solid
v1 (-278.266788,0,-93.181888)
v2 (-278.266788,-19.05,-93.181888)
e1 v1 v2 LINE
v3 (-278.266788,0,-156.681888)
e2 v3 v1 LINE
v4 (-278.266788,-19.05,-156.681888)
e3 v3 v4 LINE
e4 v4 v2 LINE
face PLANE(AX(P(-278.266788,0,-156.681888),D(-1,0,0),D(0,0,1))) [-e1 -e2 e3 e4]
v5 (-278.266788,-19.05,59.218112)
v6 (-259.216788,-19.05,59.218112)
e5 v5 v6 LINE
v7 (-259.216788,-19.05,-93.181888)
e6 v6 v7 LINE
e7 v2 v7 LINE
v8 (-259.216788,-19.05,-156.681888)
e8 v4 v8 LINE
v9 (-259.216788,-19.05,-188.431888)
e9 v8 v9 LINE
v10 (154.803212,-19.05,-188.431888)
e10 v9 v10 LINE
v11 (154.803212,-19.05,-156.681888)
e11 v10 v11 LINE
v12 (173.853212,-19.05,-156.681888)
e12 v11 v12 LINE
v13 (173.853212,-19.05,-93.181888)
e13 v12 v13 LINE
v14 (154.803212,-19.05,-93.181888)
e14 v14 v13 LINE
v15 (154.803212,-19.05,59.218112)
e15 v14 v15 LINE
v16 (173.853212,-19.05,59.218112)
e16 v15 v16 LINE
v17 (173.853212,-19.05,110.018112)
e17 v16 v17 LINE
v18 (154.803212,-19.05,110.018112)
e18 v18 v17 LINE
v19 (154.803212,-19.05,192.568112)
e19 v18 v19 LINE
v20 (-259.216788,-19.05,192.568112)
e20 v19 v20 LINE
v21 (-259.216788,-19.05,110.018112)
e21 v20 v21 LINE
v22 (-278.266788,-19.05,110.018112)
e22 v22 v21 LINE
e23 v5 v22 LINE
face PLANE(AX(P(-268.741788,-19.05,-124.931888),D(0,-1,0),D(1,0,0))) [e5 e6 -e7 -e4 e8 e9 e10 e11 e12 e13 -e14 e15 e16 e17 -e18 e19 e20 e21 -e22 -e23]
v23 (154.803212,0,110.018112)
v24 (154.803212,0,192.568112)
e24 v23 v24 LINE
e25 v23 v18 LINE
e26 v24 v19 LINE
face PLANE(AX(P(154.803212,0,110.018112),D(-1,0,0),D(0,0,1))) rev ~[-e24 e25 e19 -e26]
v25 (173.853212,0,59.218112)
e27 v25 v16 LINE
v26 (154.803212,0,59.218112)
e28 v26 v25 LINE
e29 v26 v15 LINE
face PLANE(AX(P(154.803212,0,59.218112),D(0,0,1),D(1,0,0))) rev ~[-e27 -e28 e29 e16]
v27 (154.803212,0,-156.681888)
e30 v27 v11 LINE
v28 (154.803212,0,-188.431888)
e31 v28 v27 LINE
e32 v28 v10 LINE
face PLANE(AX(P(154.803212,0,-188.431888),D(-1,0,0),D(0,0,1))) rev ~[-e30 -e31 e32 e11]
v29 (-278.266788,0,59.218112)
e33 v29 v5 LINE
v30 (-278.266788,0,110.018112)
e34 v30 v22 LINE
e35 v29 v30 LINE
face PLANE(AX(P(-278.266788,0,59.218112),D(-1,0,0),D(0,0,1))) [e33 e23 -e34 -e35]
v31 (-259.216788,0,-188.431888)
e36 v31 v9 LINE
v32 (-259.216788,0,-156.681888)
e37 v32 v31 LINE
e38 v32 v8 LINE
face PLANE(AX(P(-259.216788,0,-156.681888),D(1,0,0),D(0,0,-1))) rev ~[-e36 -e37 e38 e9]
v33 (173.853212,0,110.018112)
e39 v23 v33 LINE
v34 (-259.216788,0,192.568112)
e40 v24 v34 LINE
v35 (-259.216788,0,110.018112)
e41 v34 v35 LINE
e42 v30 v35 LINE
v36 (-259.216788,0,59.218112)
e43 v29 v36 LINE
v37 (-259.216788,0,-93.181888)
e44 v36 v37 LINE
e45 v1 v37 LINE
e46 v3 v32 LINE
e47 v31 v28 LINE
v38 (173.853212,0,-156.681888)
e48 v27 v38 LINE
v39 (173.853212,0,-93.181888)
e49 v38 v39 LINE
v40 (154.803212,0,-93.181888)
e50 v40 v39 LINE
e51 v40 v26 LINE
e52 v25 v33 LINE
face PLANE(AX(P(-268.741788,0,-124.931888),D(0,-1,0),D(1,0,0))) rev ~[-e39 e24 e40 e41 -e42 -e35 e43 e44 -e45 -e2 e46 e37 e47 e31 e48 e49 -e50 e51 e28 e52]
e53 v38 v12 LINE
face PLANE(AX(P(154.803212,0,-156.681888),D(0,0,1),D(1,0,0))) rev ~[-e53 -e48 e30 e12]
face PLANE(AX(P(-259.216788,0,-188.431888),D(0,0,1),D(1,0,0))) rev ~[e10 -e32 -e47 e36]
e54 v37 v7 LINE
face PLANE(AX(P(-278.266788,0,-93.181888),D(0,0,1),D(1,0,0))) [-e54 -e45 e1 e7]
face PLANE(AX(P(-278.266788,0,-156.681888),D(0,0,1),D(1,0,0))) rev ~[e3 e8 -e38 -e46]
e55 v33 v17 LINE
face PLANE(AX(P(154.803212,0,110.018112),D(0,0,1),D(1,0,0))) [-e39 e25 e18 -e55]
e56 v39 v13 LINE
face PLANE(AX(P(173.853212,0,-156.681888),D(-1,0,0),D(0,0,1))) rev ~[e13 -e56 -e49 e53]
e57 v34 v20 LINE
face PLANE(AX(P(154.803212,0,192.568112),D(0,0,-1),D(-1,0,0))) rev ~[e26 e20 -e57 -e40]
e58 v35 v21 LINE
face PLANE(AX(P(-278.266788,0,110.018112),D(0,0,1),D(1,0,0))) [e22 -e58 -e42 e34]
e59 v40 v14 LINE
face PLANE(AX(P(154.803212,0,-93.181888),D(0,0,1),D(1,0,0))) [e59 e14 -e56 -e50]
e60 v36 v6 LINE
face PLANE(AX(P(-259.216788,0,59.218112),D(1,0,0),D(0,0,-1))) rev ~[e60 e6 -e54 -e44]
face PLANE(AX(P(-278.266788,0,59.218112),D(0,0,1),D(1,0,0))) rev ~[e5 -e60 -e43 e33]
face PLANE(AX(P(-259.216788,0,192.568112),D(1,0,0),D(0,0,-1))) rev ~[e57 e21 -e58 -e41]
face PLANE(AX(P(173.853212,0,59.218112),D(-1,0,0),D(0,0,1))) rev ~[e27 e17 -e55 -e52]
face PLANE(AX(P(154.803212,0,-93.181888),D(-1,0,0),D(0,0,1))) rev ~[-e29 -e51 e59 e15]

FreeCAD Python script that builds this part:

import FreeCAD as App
import Part
import Sketcher

V = App.Vector
Q = App.Units.Quantity


def add_polygon(sketch, points):
    """Adds a closed chain of lines whose ends are joined by coincident constraints."""
    first, n = sketch.GeometryCount, len(points)
    for a, b in zip(points, points[1:] + points[:1]):
        sketch.addGeometry(Part.LineSegment(App.Vector(*a, 0), App.Vector(*b, 0)), False)
    for i in range(n):
        sketch.addConstraint(Sketcher.Constraint("Coincident", first + i, 2, first + (i + 1) % n, 1))

doc = App.newDocument("Part")
body = doc.addObject("PartDesign::Body", "Body")

# Sketch on XZ plane
sketch1 = body.newObject("Sketcher::SketchObject", "Sketch")
sketch1.AttachmentSupport = (doc.getObject("XZ_Plane"), [""])
sketch1.MapMode = "FlatFace"
add_polygon(sketch1, [(-278, -93), (-278, -157), (-259, -157), (-259, -188), (155, -188), (155, -157), (174, -157), (174, -93), (155, -93), (155, 59), (174, 59), (174, 110), (155, 110), (155, 193), (-259, 193), (-259, 110), (-278, 110), (-278, 59), (-259, 59), (-259, -93)])  # lines 0-19
sketch1.addConstraint([
    Sketcher.Constraint("Vertical", 0),
    Sketcher.Constraint("Horizontal", 1),
    Sketcher.Constraint("Vertical", 2),
    Sketcher.Constraint("Horizontal", 3),
    Sketcher.Constraint("Vertical", 4),
    Sketcher.Constraint("Horizontal", 5),
    Sketcher.Constraint("Vertical", 6),
    Sketcher.Constraint("Horizontal", 7),
    Sketcher.Constraint("Vertical", 8),
    Sketcher.Constraint("Horizontal", 9),
    Sketcher.Constraint("Vertical", 10),
    Sketcher.Constraint("Horizontal", 11),
    Sketcher.Constraint("Vertical", 12),
    Sketcher.Constraint("Horizontal", 13),
    Sketcher.Constraint("Vertical", 14),
    Sketcher.Constraint("Horizontal", 15),
    Sketcher.Constraint("Vertical", 16),
    Sketcher.Constraint("Horizontal", 17),
    Sketcher.Constraint("Vertical", 18),
    Sketcher.Constraint("Horizontal", 19),
    Sketcher.Constraint("Horizontal", 1, 2, 4, 2),
    Sketcher.Constraint("Horizontal", 11, 2, 14, 2),
    Sketcher.Constraint("Horizontal", 9, 2, 16, 2),
    Sketcher.Constraint("Horizontal", 7, 2, 18, 2),
    Sketcher.Constraint("Vertical", 4, 2, 7, 2),
    Sketcher.Constraint("Vertical", 6, 2, 9, 2),
    Sketcher.Constraint("Vertical", 8, 2, 11, 2),
    Sketcher.Constraint("Vertical", 2, 2, 13, 2),
    Sketcher.Constraint("Vertical", 0, 2, 15, 2),
    Sketcher.Constraint("Vertical", 14, 2, 17, 2),
    Sketcher.Constraint("Equal", 1, 5),
    Sketcher.Constraint("DistanceY", 8, 1, 8, 2, Q("6 in")),
    Sketcher.Constraint("DistanceY", 10, 1, 10, 2, Q("2 in")),
    Sketcher.Constraint("DistanceX", 3, 1, 3, 2, Q("16.3 in")),
    Sketcher.Constraint("DistanceY", 0, 2, 0, 1, Q("2.5 in")),
    Sketcher.Constraint("DistanceY", 2, 2, 13, 2, Q("15 in")),
    Sketcher.Constraint("DistanceX", 1, 1, 1, 2, Q("0.75 in")),
    Sketcher.Constraint("DistanceY", 2, 2, 2, 1, Q("1.25 in")),
    Sketcher.Constraint("DistanceX", 0, 2, -1, 1, 278.266788),
    Sketcher.Constraint("DistanceY", 6, 2, -1, 1, 93.181888),
])
pad1 = body.newObject("PartDesign::Pad", "Pad")
pad1.Profile = sketch1
pad1.Length = Q("0.75 in")

doc.recompute()
